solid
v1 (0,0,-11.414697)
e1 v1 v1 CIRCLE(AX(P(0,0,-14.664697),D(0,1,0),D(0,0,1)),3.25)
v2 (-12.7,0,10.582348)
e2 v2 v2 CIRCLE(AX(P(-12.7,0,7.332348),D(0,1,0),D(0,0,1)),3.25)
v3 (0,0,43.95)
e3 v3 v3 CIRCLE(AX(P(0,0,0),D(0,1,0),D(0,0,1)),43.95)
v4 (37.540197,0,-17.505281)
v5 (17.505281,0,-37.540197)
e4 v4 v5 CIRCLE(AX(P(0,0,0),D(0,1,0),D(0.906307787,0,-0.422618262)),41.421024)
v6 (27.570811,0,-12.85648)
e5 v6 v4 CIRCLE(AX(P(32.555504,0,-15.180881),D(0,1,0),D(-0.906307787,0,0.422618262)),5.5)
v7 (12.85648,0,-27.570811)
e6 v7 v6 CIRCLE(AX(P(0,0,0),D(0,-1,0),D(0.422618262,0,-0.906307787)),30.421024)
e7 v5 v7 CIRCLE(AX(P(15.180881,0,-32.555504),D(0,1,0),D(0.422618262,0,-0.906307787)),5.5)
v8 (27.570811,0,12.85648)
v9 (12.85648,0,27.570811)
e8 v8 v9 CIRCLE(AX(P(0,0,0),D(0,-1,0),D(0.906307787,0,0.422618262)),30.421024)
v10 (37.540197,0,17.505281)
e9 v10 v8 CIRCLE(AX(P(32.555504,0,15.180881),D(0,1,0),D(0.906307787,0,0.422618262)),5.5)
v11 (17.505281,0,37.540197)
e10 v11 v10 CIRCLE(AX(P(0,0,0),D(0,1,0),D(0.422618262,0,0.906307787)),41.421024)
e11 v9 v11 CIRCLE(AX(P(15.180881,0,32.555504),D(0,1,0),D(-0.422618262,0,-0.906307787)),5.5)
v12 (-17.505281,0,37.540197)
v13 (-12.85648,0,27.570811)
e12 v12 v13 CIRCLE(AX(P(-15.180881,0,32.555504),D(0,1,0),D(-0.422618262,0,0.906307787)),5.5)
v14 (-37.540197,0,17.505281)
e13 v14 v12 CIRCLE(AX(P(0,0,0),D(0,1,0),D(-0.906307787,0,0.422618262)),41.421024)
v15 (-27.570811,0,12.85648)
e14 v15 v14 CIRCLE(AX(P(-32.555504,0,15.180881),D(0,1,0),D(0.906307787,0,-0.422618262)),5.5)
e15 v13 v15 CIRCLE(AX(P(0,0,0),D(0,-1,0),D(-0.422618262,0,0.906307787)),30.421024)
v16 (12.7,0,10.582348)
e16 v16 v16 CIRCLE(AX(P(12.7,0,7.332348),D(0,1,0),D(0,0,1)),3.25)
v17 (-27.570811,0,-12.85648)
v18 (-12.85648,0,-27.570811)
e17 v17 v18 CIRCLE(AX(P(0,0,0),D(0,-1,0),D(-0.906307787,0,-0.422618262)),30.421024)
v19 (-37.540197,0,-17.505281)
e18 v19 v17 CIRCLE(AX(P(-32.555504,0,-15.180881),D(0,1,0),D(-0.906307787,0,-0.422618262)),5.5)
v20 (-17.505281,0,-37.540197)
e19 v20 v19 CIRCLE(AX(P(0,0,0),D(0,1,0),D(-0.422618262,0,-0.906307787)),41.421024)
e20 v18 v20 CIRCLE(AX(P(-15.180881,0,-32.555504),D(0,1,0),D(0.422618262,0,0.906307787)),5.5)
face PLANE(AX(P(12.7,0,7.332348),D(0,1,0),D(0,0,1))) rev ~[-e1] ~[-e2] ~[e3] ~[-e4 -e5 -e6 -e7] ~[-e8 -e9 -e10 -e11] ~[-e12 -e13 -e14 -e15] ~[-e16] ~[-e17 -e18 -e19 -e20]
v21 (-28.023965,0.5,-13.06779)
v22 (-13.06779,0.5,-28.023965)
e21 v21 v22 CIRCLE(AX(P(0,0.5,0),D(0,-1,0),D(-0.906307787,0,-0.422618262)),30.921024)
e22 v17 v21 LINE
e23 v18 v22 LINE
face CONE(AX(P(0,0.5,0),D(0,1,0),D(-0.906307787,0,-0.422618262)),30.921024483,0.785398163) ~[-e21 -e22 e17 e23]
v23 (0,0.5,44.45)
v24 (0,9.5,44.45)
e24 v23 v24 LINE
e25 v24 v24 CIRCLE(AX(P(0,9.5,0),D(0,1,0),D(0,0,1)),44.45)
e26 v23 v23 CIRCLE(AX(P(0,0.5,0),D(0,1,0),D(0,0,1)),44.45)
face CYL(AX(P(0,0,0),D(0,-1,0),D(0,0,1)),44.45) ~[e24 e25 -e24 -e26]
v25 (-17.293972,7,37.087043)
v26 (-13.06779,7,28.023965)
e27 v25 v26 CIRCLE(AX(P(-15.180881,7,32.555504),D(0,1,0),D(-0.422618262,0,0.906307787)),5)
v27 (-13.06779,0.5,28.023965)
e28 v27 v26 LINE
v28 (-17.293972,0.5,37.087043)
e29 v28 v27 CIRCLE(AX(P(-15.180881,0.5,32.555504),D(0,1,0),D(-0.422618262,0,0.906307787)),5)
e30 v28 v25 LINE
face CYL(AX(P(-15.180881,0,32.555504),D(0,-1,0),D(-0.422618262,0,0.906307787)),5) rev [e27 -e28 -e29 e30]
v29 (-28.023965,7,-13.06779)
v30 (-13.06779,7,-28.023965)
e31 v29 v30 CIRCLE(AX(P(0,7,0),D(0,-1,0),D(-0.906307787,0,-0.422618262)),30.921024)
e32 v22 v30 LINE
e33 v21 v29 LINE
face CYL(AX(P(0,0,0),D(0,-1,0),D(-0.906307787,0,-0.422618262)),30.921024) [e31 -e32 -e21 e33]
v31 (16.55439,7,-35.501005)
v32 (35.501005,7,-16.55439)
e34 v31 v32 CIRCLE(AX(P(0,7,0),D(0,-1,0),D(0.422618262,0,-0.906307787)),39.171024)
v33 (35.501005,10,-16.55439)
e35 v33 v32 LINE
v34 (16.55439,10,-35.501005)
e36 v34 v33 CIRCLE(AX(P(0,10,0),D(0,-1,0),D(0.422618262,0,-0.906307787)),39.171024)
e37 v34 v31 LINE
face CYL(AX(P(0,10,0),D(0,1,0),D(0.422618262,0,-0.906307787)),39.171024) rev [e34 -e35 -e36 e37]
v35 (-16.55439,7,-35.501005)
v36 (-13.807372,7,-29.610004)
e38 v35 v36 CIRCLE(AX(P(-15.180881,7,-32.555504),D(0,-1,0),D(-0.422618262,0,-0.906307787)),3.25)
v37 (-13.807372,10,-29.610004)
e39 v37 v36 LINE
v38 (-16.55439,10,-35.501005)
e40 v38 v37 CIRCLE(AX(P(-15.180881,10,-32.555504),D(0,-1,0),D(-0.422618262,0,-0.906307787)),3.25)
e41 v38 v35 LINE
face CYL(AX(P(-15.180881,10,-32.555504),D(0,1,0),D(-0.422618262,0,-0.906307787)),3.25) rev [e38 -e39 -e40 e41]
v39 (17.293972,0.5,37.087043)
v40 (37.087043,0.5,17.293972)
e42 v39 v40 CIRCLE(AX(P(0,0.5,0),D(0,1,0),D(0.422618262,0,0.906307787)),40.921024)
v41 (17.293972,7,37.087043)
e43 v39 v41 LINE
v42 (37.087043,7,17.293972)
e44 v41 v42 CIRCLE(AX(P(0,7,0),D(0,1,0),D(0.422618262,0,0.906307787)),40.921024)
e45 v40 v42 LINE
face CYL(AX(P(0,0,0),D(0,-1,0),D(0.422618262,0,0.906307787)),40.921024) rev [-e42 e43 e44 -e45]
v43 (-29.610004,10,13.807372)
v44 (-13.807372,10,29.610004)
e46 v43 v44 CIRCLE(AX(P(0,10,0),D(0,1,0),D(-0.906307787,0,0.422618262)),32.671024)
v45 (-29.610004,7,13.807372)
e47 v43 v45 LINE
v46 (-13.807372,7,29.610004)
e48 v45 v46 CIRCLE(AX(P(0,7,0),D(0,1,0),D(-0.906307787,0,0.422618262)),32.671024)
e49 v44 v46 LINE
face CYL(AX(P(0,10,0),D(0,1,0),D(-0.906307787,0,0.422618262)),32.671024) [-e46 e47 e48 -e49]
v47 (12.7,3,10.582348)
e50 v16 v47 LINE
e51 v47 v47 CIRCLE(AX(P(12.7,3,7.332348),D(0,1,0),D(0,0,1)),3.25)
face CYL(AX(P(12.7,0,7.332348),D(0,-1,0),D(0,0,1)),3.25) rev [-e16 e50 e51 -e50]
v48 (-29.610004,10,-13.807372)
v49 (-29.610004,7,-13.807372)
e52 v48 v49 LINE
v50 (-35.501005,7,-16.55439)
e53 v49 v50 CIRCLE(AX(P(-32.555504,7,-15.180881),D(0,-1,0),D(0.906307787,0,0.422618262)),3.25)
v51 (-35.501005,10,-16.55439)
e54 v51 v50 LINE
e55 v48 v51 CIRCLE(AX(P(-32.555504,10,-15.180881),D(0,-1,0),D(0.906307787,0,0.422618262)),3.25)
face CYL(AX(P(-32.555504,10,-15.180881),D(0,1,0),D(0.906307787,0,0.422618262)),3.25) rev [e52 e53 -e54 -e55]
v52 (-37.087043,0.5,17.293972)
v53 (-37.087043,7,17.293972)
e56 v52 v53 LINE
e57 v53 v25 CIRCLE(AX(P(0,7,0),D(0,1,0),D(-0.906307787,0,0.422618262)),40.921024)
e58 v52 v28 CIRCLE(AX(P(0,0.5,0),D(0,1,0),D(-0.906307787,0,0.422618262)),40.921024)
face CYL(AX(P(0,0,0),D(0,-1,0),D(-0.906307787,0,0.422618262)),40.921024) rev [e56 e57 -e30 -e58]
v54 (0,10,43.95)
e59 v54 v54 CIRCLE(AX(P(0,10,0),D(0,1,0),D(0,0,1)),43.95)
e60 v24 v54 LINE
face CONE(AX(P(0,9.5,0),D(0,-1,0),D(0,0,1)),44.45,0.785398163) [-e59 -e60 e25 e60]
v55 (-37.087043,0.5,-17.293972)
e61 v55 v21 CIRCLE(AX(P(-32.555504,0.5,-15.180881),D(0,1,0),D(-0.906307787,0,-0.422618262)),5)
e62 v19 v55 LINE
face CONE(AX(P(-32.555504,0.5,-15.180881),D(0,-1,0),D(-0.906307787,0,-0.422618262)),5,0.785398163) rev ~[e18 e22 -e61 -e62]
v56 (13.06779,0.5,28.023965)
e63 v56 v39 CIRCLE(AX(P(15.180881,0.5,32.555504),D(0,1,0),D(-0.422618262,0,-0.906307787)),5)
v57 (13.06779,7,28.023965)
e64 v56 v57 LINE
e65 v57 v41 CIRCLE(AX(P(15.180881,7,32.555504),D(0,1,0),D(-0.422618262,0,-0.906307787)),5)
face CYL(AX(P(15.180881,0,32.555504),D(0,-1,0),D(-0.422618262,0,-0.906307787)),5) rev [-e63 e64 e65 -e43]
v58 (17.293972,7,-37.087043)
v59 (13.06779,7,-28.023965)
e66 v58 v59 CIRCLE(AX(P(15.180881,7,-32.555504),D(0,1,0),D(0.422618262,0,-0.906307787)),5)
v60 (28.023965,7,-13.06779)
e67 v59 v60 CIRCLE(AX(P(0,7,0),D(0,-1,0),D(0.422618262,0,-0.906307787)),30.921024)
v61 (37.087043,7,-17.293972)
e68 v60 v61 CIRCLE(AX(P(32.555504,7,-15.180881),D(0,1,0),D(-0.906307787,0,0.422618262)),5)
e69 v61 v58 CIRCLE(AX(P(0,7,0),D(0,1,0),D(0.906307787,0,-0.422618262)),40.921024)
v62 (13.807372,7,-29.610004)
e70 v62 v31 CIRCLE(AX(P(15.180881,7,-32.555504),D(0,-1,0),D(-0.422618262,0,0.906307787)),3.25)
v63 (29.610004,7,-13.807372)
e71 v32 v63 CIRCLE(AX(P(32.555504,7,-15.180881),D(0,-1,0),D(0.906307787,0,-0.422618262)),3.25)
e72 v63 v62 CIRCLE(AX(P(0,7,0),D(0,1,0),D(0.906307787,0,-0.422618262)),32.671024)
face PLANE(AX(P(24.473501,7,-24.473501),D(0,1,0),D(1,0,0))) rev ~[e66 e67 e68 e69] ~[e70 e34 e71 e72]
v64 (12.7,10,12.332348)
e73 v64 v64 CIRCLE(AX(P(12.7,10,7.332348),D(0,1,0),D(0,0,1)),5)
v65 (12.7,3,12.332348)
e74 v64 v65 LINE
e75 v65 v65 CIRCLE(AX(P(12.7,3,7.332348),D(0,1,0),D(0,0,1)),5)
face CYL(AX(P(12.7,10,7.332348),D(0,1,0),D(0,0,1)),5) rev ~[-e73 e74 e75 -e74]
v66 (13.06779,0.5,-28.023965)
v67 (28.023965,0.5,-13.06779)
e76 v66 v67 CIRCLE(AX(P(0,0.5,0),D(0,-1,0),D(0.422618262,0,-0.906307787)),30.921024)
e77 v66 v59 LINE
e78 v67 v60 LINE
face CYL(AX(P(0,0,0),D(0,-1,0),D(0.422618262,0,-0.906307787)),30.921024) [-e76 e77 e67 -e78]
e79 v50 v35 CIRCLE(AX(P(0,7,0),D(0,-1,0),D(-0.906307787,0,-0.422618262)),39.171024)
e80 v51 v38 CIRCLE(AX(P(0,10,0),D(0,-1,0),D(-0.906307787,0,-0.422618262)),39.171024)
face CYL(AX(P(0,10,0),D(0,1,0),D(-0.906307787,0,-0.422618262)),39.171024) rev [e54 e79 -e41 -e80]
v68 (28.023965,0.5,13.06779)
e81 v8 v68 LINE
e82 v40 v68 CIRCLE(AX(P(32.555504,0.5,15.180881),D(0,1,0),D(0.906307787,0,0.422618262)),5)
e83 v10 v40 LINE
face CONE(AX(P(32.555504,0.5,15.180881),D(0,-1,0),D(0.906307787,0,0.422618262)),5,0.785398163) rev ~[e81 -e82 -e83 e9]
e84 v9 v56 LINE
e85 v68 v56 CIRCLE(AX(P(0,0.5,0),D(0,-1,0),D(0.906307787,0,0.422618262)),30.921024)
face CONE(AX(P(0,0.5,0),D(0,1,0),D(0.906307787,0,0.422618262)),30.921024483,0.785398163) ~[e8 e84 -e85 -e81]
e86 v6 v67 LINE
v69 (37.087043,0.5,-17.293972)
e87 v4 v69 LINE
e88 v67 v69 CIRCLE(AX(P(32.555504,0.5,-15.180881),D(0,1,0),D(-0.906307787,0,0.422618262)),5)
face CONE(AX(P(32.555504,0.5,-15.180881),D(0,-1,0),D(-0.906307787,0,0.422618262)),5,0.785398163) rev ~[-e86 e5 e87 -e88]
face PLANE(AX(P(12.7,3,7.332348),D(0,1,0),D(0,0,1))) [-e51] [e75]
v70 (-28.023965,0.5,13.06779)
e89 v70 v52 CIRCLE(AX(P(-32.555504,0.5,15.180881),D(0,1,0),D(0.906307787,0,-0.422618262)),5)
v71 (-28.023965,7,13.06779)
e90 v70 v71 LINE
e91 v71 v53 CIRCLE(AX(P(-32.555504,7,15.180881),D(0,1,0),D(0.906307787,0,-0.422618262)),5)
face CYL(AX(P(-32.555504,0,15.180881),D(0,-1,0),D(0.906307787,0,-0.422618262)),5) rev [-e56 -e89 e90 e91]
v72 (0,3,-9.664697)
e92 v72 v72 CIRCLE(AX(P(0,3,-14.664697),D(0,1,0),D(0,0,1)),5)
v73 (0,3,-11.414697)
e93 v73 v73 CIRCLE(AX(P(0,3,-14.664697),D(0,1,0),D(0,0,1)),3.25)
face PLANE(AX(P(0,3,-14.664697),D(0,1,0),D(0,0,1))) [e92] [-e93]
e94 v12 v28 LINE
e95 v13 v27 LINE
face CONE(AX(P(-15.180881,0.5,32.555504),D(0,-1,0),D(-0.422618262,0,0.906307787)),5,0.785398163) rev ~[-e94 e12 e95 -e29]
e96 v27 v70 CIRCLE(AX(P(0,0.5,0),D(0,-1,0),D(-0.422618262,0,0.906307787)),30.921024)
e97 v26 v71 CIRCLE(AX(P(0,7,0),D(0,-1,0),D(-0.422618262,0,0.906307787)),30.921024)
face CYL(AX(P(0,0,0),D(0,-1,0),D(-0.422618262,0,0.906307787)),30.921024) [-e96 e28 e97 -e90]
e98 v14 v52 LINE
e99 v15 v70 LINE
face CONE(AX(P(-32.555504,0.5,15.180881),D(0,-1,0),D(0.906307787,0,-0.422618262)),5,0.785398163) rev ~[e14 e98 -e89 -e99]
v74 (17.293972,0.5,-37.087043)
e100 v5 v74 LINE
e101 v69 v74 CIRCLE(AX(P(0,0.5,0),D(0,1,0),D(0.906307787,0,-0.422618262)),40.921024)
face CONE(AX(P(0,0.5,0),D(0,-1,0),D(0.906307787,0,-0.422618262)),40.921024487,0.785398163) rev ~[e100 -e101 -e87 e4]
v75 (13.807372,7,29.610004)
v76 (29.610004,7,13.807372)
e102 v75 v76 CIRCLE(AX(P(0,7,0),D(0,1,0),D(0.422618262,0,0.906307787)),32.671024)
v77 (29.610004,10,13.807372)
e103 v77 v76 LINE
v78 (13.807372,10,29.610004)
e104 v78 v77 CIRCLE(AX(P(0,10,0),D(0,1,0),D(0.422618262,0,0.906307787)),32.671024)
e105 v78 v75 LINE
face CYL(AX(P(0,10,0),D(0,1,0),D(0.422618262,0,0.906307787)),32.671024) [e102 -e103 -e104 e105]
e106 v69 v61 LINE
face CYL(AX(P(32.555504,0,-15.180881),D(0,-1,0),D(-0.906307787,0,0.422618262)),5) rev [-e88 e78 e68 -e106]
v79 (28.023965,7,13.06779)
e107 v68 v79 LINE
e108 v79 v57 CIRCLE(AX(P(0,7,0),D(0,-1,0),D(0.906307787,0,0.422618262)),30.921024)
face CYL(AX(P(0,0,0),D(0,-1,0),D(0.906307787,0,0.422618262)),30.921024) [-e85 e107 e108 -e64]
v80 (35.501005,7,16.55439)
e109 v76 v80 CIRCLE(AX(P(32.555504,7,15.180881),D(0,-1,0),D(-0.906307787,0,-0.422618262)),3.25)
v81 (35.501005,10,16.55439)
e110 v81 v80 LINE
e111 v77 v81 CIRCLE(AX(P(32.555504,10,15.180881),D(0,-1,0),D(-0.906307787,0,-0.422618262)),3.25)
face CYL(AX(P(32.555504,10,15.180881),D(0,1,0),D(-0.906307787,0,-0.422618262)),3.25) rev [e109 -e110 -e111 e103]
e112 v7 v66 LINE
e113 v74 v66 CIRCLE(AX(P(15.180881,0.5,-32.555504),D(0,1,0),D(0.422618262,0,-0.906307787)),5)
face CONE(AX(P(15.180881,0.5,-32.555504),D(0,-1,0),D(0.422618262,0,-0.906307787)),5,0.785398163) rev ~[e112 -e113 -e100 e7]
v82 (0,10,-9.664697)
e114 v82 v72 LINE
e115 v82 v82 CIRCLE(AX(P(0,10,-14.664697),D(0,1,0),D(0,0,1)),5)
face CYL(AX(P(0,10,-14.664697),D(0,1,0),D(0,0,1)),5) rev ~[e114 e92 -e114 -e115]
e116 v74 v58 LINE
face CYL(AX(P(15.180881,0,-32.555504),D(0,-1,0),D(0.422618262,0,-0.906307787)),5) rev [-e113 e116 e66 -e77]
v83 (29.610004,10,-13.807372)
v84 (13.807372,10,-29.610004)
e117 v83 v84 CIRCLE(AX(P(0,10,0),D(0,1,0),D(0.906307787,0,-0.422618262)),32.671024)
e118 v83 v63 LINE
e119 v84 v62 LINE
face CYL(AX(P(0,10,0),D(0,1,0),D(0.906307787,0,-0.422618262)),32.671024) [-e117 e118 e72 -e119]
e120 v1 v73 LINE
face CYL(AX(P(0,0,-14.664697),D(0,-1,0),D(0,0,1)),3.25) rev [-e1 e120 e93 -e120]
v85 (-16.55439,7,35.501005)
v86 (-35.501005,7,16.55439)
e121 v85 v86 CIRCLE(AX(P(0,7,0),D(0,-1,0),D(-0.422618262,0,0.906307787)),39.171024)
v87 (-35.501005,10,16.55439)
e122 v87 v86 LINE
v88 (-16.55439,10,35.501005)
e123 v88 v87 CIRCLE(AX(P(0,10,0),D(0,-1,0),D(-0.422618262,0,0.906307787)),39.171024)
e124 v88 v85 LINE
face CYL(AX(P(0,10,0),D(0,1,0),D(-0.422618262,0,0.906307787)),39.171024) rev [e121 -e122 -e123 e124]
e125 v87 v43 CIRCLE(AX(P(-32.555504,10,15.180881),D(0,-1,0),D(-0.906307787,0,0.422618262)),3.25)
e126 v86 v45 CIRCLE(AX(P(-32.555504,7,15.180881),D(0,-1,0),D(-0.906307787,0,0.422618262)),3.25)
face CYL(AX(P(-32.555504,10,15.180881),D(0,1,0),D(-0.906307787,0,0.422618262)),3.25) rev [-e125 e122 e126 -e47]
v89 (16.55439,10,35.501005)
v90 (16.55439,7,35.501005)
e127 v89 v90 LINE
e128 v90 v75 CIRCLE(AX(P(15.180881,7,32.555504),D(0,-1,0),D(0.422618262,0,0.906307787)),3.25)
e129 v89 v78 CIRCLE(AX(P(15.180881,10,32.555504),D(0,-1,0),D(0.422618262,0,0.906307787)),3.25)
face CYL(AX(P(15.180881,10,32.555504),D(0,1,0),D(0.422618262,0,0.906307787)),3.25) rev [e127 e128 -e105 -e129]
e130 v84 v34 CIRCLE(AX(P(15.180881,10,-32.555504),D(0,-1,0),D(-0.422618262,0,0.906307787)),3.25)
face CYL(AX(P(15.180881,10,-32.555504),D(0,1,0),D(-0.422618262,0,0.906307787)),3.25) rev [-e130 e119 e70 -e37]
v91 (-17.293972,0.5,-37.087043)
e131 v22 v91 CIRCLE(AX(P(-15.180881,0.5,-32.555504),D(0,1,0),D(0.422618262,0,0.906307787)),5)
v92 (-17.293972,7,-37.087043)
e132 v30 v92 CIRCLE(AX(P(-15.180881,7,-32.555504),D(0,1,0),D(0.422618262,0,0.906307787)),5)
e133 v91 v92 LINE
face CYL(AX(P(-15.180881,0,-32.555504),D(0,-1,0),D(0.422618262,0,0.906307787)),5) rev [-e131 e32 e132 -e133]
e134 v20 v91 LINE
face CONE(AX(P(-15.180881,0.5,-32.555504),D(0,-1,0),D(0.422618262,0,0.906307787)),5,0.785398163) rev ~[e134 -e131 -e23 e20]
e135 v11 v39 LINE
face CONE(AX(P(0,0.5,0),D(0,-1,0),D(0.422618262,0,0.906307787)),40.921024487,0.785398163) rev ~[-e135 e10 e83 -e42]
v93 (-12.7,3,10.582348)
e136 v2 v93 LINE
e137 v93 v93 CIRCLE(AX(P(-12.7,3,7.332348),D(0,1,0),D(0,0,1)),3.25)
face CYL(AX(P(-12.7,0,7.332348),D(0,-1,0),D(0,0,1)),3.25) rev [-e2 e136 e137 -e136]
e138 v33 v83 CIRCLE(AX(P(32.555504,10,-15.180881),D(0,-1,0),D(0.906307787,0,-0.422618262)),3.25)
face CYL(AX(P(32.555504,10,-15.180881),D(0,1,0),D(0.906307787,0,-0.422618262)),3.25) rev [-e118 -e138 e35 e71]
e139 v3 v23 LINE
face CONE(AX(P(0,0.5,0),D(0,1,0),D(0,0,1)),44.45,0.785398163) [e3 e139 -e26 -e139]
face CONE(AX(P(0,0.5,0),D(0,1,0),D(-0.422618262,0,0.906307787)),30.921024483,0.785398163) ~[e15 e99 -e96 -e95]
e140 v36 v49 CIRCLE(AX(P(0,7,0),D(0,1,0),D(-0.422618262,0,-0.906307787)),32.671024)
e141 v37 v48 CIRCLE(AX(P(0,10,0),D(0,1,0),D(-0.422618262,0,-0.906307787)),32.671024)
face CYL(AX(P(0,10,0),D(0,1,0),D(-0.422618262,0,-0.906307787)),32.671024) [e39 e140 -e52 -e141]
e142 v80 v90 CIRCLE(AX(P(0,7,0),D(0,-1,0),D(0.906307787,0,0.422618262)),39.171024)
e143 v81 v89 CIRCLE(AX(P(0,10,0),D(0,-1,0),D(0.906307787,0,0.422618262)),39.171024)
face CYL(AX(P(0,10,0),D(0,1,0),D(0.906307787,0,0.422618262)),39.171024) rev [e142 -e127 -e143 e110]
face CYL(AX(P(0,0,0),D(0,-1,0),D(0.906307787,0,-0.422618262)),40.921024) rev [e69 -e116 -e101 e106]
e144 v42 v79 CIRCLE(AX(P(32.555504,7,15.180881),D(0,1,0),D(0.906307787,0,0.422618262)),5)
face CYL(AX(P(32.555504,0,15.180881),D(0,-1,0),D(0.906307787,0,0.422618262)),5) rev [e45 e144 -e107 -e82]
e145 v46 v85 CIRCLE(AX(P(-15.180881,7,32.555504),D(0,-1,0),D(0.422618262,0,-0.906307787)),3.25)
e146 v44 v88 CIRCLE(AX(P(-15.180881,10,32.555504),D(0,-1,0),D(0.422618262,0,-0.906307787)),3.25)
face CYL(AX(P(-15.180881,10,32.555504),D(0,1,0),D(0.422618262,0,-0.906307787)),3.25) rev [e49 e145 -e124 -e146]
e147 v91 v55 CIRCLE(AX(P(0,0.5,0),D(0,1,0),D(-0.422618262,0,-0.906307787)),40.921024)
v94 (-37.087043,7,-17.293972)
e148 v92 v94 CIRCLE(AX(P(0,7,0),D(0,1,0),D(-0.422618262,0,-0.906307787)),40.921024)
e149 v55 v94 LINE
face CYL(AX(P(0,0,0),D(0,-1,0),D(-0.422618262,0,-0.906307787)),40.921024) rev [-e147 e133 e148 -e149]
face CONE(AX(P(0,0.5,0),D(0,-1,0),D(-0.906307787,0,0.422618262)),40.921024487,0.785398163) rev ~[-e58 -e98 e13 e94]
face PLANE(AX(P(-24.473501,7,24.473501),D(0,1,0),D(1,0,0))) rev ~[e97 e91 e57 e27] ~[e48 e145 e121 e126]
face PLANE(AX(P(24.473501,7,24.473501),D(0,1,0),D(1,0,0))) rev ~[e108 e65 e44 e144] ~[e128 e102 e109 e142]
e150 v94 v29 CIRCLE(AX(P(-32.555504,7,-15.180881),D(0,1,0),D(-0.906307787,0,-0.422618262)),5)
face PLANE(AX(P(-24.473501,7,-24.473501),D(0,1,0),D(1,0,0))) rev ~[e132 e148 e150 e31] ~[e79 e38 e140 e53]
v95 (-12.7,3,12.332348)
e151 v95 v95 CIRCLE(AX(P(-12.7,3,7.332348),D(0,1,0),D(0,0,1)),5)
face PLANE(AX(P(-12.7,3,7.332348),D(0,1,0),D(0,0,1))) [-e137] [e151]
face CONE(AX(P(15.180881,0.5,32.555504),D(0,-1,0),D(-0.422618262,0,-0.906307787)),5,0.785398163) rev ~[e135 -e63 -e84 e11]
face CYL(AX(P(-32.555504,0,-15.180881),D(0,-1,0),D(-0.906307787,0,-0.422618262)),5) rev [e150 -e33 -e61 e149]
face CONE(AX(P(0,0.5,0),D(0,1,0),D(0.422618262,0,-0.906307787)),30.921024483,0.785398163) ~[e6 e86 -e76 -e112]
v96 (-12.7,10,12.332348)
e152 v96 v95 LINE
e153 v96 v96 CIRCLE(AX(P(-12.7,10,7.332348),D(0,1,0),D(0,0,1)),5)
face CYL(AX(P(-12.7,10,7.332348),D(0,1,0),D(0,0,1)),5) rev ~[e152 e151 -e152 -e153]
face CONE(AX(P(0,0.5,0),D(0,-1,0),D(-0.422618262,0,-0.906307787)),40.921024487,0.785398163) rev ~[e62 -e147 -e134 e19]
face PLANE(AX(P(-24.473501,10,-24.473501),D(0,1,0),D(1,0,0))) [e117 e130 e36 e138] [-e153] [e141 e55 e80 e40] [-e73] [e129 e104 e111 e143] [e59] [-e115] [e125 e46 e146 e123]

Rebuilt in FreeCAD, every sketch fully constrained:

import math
import FreeCAD as App
import Part
import Sketcher

V = App.Vector
Q = App.Units.Quantity


def edges_at(feature, points):
    """Names of the edges that pass closest to the given points."""
    edges = feature.Shape.Edges
    near = lambda p: min(range(len(edges)), key=lambda i: edges[i].distToShape(Part.Vertex(*p))[0])
    return sorted({f"Edge{near(p) + 1}" for p in points})

doc = App.newDocument("Part")
body = doc.addObject("PartDesign::Body", "Body")

# Sketch on XZ plane
sketch1 = body.newObject("Sketcher::SketchObject", "Sketch")
sketch1.AttachmentSupport = (doc.getObject("XZ_Plane"), [""])
sketch1.MapMode = "FlatFace"
sketch1.addGeometry(Part.Circle(V(0, 0, 0), V(0, 0, 1), 44), False)
sketch1.addGeometry(Part.ArcOfCircle(Part.Circle(V(0, 0, 0), V(0, 0, 1), 41), math.radians(-155), math.radians(-115)), False)
sketch1.addGeometry(Part.ArcOfCircle(Part.Circle(V(-15, -33, 0), V(0, 0, 1), 5), math.radians(-115), math.radians(65)), False)
sketch1.addGeometry(Part.ArcOfCircle(Part.Circle(V(0, 0, 0), V(0, 0, 1), 31), math.radians(-155), math.radians(-115)), False)
sketch1.addGeometry(Part.ArcOfCircle(Part.Circle(V(-33, -15, 0), V(0, 0, 1), 5), math.radians(25), math.radians(205)), False)
sketch1.addGeometry(Part.ArcOfCircle(Part.Circle(V(0, 0, 0), V(0, 0, 1), 41), math.radians(115), math.radians(155)), False)
sketch1.addGeometry(Part.ArcOfCircle(Part.Circle(V(-33, 15, 0), V(0, 0, 1), 5), math.radians(155), math.radians(335)), False)
sketch1.addGeometry(Part.ArcOfCircle(Part.Circle(V(0, 0, 0), V(0, 0, 1), 31), math.radians(115), math.radians(155)), False)
sketch1.addGeometry(Part.ArcOfCircle(Part.Circle(V(-15, 33, 0), V(0, 0, 1), 5), math.radians(-65), math.radians(115)), False)
sketch1.addGeometry(Part.ArcOfCircle(Part.Circle(V(0, 0, 0), V(0, 0, 1), 41), math.radians(-65), math.radians(-25)), False)
sketch1.addGeometry(Part.ArcOfCircle(Part.Circle(V(33, -15, 0), V(0, 0, 1), 5), math.radians(-25), math.radians(155)), False)
sketch1.addGeometry(Part.ArcOfCircle(Part.Circle(V(0, 0, 0), V(0, 0, 1), 31), math.radians(-65), math.radians(-25)), False)
sketch1.addGeometry(Part.ArcOfCircle(Part.Circle(V(15, -33, 0), V(0, 0, 1), 5), math.radians(115), math.radians(295)), False)
sketch1.addGeometry(Part.ArcOfCircle(Part.Circle(V(0, 0, 0), V(0, 0, 1), 41), math.radians(25), math.radians(65)), False)
sketch1.addGeometry(Part.ArcOfCircle(Part.Circle(V(15, 33, 0), V(0, 0, 1), 5), math.radians(65), math.radians(245)), False)
sketch1.addGeometry(Part.ArcOfCircle(Part.Circle(V(0, 0, 0), V(0, 0, 1), 31), math.radians(25), math.radians(65)), False)
sketch1.addGeometry(Part.ArcOfCircle(Part.Circle(V(33, 15, 0), V(0, 0, 1), 5), math.radians(-155), math.radians(25)), False)
sketch1.addConstraint(Sketcher.Constraint("Tangent", 1, 2, 2, 1))
sketch1.addConstraint(Sketcher.Constraint("Tangent", 2, 2, 3, 2))
sketch1.addConstraint(Sketcher.Constraint("Tangent", 3, 1, 4, 1))
sketch1.addConstraint(Sketcher.Constraint("Tangent", 4, 2, 1, 1))
sketch1.addConstraint(Sketcher.Constraint("Tangent", 5, 2, 6, 1))
sketch1.addConstraint(Sketcher.Constraint("Tangent", 6, 2, 7, 2))
sketch1.addConstraint(Sketcher.Constraint("Tangent", 7, 1, 8, 1))
sketch1.addConstraint(Sketcher.Constraint("Tangent", 8, 2, 5, 1))
sketch1.addConstraint(Sketcher.Constraint("Tangent", 9, 2, 10, 1))
sketch1.addConstraint(Sketcher.Constraint("Tangent", 10, 2, 11, 2))
sketch1.addConstraint(Sketcher.Constraint("Tangent", 11, 1, 12, 1))
sketch1.addConstraint(Sketcher.Constraint("Tangent", 12, 2, 9, 1))
sketch1.addConstraint(Sketcher.Constraint("Tangent", 13, 2, 14, 1))
sketch1.addConstraint(Sketcher.Constraint("Tangent", 14, 2, 15, 2))
sketch1.addConstraint(Sketcher.Constraint("Tangent", 15, 1, 16, 1))
sketch1.addConstraint(Sketcher.Constraint("Tangent", 16, 2, 13, 1))
sketch1.addConstraint(Sketcher.Constraint("Coincident", 0, 3, -1, 1))
sketch1.addConstraint(Sketcher.Constraint("Coincident", 1, 3, -1, 1))
sketch1.addConstraint(Sketcher.Constraint("Coincident", 3, 3, -1, 1))
sketch1.addConstraint(Sketcher.Constraint("Coincident", 5, 3, -1, 1))
sketch1.addConstraint(Sketcher.Constraint("Coincident", 7, 3, -1, 1))
sketch1.addConstraint(Sketcher.Constraint("Coincident", 9, 3, -1, 1))
sketch1.addConstraint(Sketcher.Constraint("Coincident", 11, 3, -1, 1))
sketch1.addConstraint(Sketcher.Constraint("Coincident", 13, 3, -1, 1))
sketch1.addConstraint(Sketcher.Constraint("Coincident", 15, 3, -1, 1))
sketch1.addConstraint(Sketcher.Constraint("Equal", 1, 5))
sketch1.addConstraint(Sketcher.Constraint("Equal", 4, 6))
sketch1.addConstraint(Sketcher.Constraint("Equal", 5, 9))
sketch1.addConstraint(Sketcher.Constraint("Equal", 8, 10))
sketch1.addConstraint(Sketcher.Constraint("Equal", 9, 13))
sketch1.addConstraint(Sketcher.Constraint("Equal", 12, 14))
sketch1.addConstraint(Sketcher.Constraint("Horizontal", 4, 3, 10, 3))
sketch1.addConstraint(Sketcher.Constraint("Horizontal", 2, 3, 12, 3))
sketch1.addConstraint(Sketcher.Constraint("Horizontal", 8, 3, 14, 3))
sketch1.addConstraint(Sketcher.Constraint("Horizontal", 6, 3, 16, 3))
sketch1.addConstraint(Sketcher.Constraint("Vertical", 4, 3, 6, 3))
sketch1.addConstraint(Sketcher.Constraint("Vertical", 2, 3, 8, 3))
sketch1.addConstraint(Sketcher.Constraint("Radius", 2, Q("5 mm")))
sketch1.addConstraint(Sketcher.Constraint("Diameter", 0, Q("88.9 mm")))
sketch1.addConstraint(Sketcher.Constraint("Radius", 1, Q("40.921024 mm")))
sketch1.addConstraint(Sketcher.Constraint("DistanceX", 2, 3, -1, 1, Q("15.180881 mm")))
sketch1.addConstraint(Sketcher.Constraint("DistanceY", 4, 3, -1, 1, Q("15.180881 mm")))
pad1 = body.newObject("PartDesign::Pad", "Pad")
pad1.Profile = sketch1
pad1.Length = 10
pad1.Reversed = True

# Sketch on XZ plane
sketch2 = body.newObject("Sketcher::SketchObject", "Sketch001")
sketch2.AttachmentSupport = (doc.getObject("XZ_Plane"), [""])
sketch2.MapMode = "FlatFace"
sketch2.AttachmentOffset = App.Placement(V(0, 0, -10), App.Rotation())
sketch2.addGeometry(Part.ArcOfCircle(Part.Circle(V(0, 0, 0), V(0, 0, 1), 40.9), math.radians(-155), math.radians(-115)), False)
sketch2.addGeometry(Part.ArcOfCircle(Part.Circle(V(-32.6, -15.2, 0), V(0, 0, 1), 5), math.radians(25), math.radians(205)), False)
sketch2.addGeometry(Part.ArcOfCircle(Part.Circle(V(0, 0, 0), V(0, 0, 1), 30.9), math.radians(-155), math.radians(-115)), False)
sketch2.addGeometry(Part.ArcOfCircle(Part.Circle(V(-15.2, -32.6, 0), V(0, 0, 1), 5), math.radians(-115), math.radians(65)), False)
sketch2.addGeometry(Part.ArcOfCircle(Part.Circle(V(0, 0, 0), V(0, 0, 1), 39.2), math.radians(-155), math.radians(-115)), False)
sketch2.addGeometry(Part.ArcOfCircle(Part.Circle(V(-15.2, -32.6, 0), V(0, 0, 1), 3.2), math.radians(-115), math.radians(65)), False)
sketch2.addGeometry(Part.ArcOfCircle(Part.Circle(V(0, 0, 0), V(0, 0, 1), 32.7), math.radians(-155), math.radians(-115)), False)
sketch2.addGeometry(Part.ArcOfCircle(Part.Circle(V(-32.6, -15.2, 0), V(0, 0, 1), 3.2), math.radians(25), math.radians(205)), False)
sketch2.addGeometry(Part.ArcOfCircle(Part.Circle(V(15.2, -32.6, 0), V(0, 0, 1), 5), math.radians(115), math.radians(295)), False)
sketch2.addGeometry(Part.ArcOfCircle(Part.Circle(V(0, 0, 0), V(0, 0, 1), 30.9), math.radians(-65), math.radians(-25)), False)
sketch2.addGeometry(Part.ArcOfCircle(Part.Circle(V(32.6, -15.2, 0), V(0, 0, 1), 5), math.radians(-25), math.radians(155)), False)
sketch2.addGeometry(Part.ArcOfCircle(Part.Circle(V(0, 0, 0), V(0, 0, 1), 40.9), math.radians(-65), math.radians(-25)), False)
sketch2.addGeometry(Part.ArcOfCircle(Part.Circle(V(0, 0, 0), V(0, 0, 1), 39.2), math.radians(-65), math.radians(-25)), False)
sketch2.addGeometry(Part.ArcOfCircle(Part.Circle(V(32.6, -15.2, 0), V(0, 0, 1), 3.2), math.radians(-25), math.radians(155)), False)
sketch2.addGeometry(Part.ArcOfCircle(Part.Circle(V(0, 0, 0), V(0, 0, 1), 32.7), math.radians(-65), math.radians(-25)), False)
sketch2.addGeometry(Part.ArcOfCircle(Part.Circle(V(15.2, -32.6, 0), V(0, 0, 1), 3.2), math.radians(115), math.radians(295)), False)
sketch2.addGeometry(Part.ArcOfCircle(Part.Circle(V(32.6, 15.2, 0), V(0, 0, 1), 5), math.radians(-155), math.radians(25)), False)
sketch2.addGeometry(Part.ArcOfCircle(Part.Circle(V(0, 0, 0), V(0, 0, 1), 30.9), math.radians(25), math.radians(65)), False)
sketch2.addGeometry(Part.ArcOfCircle(Part.Circle(V(15.2, 32.6, 0), V(0, 0, 1), 5), math.radians(65), math.radians(245)), False)
sketch2.addGeometry(Part.ArcOfCircle(Part.Circle(V(0, 0, 0), V(0, 0, 1), 40.9), math.radians(25), math.radians(65)), False)
sketch2.addGeometry(Part.ArcOfCircle(Part.Circle(V(0, 0, 0), V(0, 0, 1), 39.2), math.radians(25), math.radians(65)), False)
sketch2.addGeometry(Part.ArcOfCircle(Part.Circle(V(15.2, 32.6, 0), V(0, 0, 1), 3.2), math.radians(65), math.radians(245)), False)
sketch2.addGeometry(Part.ArcOfCircle(Part.Circle(V(0, 0, 0), V(0, 0, 1), 32.7), math.radians(25), math.radians(65)), False)
sketch2.addGeometry(Part.ArcOfCircle(Part.Circle(V(32.6, 15.2, 0), V(0, 0, 1), 3.2), math.radians(-155), math.radians(25)), False)
sketch2.addGeometry(Part.ArcOfCircle(Part.Circle(V(-32.6, 15.2, 0), V(0, 0, 1), 5), math.radians(155), math.radians(335)), False)
sketch2.addGeometry(Part.ArcOfCircle(Part.Circle(V(0, 0, 0), V(0, 0, 1), 40.9), math.radians(115), math.radians(155)), False)
sketch2.addGeometry(Part.ArcOfCircle(Part.Circle(V(-15.2, 32.6, 0), V(0, 0, 1), 5), math.radians(-65), math.radians(115)), False)
sketch2.addGeometry(Part.ArcOfCircle(Part.Circle(V(0, 0, 0), V(0, 0, 1), 30.9), math.radians(115), math.radians(155)), False)
sketch2.addGeometry(Part.ArcOfCircle(Part.Circle(V(0, 0, 0), V(0, 0, 1), 39.2), math.radians(115), math.radians(155)), False)
sketch2.addGeometry(Part.ArcOfCircle(Part.Circle(V(-32.6, 15.2, 0), V(0, 0, 1), 3.2), math.radians(155), math.radians(335)), False)
sketch2.addGeometry(Part.ArcOfCircle(Part.Circle(V(0, 0, 0), V(0, 0, 1), 32.7), math.radians(115), math.radians(155)), False)
sketch2.addGeometry(Part.ArcOfCircle(Part.Circle(V(-15.2, 32.6, 0), V(0, 0, 1), 3.2), math.radians(-65), math.radians(115)), False)
sketch2.addConstraint(Sketcher.Constraint("Tangent", 0, 1, 1, 2))
sketch2.addConstraint(Sketcher.Constraint("Tangent", 1, 1, 2, 1))
sketch2.addConstraint(Sketcher.Constraint("Tangent", 2, 2, 3, 2))
sketch2.addConstraint(Sketcher.Constraint("Tangent", 3, 1, 0, 2))
sketch2.addConstraint(Sketcher.Constraint("Tangent", 4, 2, 5, 1))
sketch2.addConstraint(Sketcher.Constraint("Tangent", 5, 2, 6, 2))
sketch2.addConstraint(Sketcher.Constraint("Tangent", 6, 1, 7, 1))
sketch2.addConstraint(Sketcher.Constraint("Tangent", 7, 2, 4, 1))
sketch2.addConstraint(Sketcher.Constraint("Tangent", 8, 1, 9, 1))
sketch2.addConstraint(Sketcher.Constraint("Tangent", 9, 2, 10, 2))
sketch2.addConstraint(Sketcher.Constraint("Tangent", 10, 1, 11, 2))
sketch2.addConstraint(Sketcher.Constraint("Tangent", 11, 1, 8, 2))
sketch2.addConstraint(Sketcher.Constraint("Tangent", 12, 2, 13, 1))
sketch2.addConstraint(Sketcher.Constraint("Tangent", 13, 2, 14, 2))
sketch2.addConstraint(Sketcher.Constraint("Tangent", 14, 1, 15, 1))
sketch2.addConstraint(Sketcher.Constraint("Tangent", 15, 2, 12, 1))
sketch2.addConstraint(Sketcher.Constraint("Tangent", 16, 1, 17, 1))
sketch2.addConstraint(Sketcher.Constraint("Tangent", 17, 2, 18, 2))
sketch2.addConstraint(Sketcher.Constraint("Tangent", 18, 1, 19, 2))
sketch2.addConstraint(Sketcher.Constraint("Tangent", 19, 1, 16, 2))
sketch2.addConstraint(Sketcher.Constraint("Tangent", 20, 2, 21, 1))
sketch2.addConstraint(Sketcher.Constraint("Tangent", 21, 2, 22, 2))
sketch2.addConstraint(Sketcher.Constraint("Tangent", 22, 1, 23, 1))
sketch2.addConstraint(Sketcher.Constraint("Tangent", 23, 2, 20, 1))
sketch2.addConstraint(Sketcher.Constraint("Tangent", 24, 1, 25, 2))
sketch2.addConstraint(Sketcher.Constraint("Tangent", 25, 1, 26, 2))
sketch2.addConstraint(Sketcher.Constraint("Tangent", 26, 1, 27, 1))
sketch2.addConstraint(Sketcher.Constraint("Tangent", 27, 2, 24, 2))
sketch2.addConstraint(Sketcher.Constraint("Tangent", 28, 2, 29, 1))
sketch2.addConstraint(Sketcher.Constraint("Tangent", 29, 2, 30, 2))
sketch2.addConstraint(Sketcher.Constraint("Tangent", 30, 1, 31, 1))
sketch2.addConstraint(Sketcher.Constraint("Tangent", 31, 2, 28, 1))
sketch2.addConstraint(Sketcher.Constraint("Coincident", 0, 3, -1, 1))
sketch2.addConstraint(Sketcher.Constraint("Coincident", 2, 3, -1, 1))
sketch2.addConstraint(Sketcher.Constraint("Coincident", 4, 3, -1, 1))
sketch2.addConstraint(Sketcher.Constraint("Coincident", 6, 3, -1, 1))
sketch2.addConstraint(Sketcher.Constraint("Coincident", 9, 3, -1, 1))
sketch2.addConstraint(Sketcher.Constraint("Coincident", 11, 3, -1, 1))
sketch2.addConstraint(Sketcher.Constraint("Coincident", 12, 3, -1, 1))
sketch2.addConstraint(Sketcher.Constraint("Coincident", 14, 3, -1, 1))
sketch2.addConstraint(Sketcher.Constraint("Coincident", 17, 3, -1, 1))
sketch2.addConstraint(Sketcher.Constraint("Coincident", 19, 3, -1, 1))
sketch2.addConstraint(Sketcher.Constraint("Coincident", 20, 3, -1, 1))
sketch2.addConstraint(Sketcher.Constraint("Coincident", 22, 3, -1, 1))
sketch2.addConstraint(Sketcher.Constraint("Coincident", 25, 3, -1, 1))
sketch2.addConstraint(Sketcher.Constraint("Coincident", 27, 3, -1, 1))
sketch2.addConstraint(Sketcher.Constraint("Coincident", 28, 3, -1, 1))
sketch2.addConstraint(Sketcher.Constraint("Coincident", 30, 3, -1, 1))
sketch2.addConstraint(Sketcher.Constraint("Coincident", 5, 3, 3, 3))
sketch2.addConstraint(Sketcher.Constraint("Coincident", 13, 3, 10, 3))
sketch2.addConstraint(Sketcher.Constraint("Coincident", 21, 3, 18, 3))
sketch2.addConstraint(Sketcher.Constraint("Coincident", 29, 3, 24, 3))
sketch2.addConstraint(Sketcher.Constraint("Equal", 3, 8))
sketch2.addConstraint(Sketcher.Constraint("Equal", 2, 9))
sketch2.addConstraint(Sketcher.Constraint("Equal", 4, 12))
sketch2.addConstraint(Sketcher.Constraint("Equal", 10, 16))
sketch2.addConstraint(Sketcher.Constraint("Equal", 9, 17))
sketch2.addConstraint(Sketcher.Constraint("Equal", 12, 20))
sketch2.addConstraint(Sketcher.Constraint("Equal", 18, 24))
sketch2.addConstraint(Sketcher.Constraint("Equal", 19, 25))
sketch2.addConstraint(Sketcher.Constraint("Equal", 20, 28))
sketch2.addConstraint(Sketcher.Constraint("Horizontal", 5, 3, 8, 3))
sketch2.addConstraint(Sketcher.Constraint("Horizontal", 7, 3, 10, 3))
sketch2.addConstraint(Sketcher.Constraint("Horizontal", 5, 3, 15, 3))
sketch2.addConstraint(Sketcher.Constraint("Horizontal", 23, 3, 24, 3))
sketch2.addConstraint(Sketcher.Constraint("Horizontal", 21, 3, 26, 3))
sketch2.addConstraint(Sketcher.Constraint("Horizontal", 21, 3, 31, 3))
sketch2.addConstraint(Sketcher.Constraint("Horizontal", 1, 1, 9, 2))
sketch2.addConstraint(Sketcher.Constraint("Horizontal", 19, 1, 24, 1))
sketch2.addConstraint(Sketcher.Constraint("Vertical", 13, 3, 16, 3))
sketch2.addConstraint(Sketcher.Constraint("Vertical", 15, 3, 18, 3))
sketch2.addConstraint(Sketcher.Constraint("Radius", 1, Q("5 mm")))
sketch2.addConstraint(Sketcher.Constraint("Radius", 5, Q("3.25 mm")))
sketch2.addConstraint(Sketcher.Constraint("Radius", 0, Q("40.921024 mm")))
sketch2.addConstraint(Sketcher.Constraint("DistanceY", 1, 3, -1, 1, Q("15.180881 mm")))
sketch2.addConstraint(Sketcher.Constraint("DistanceX", 3, 3, -1, 1, Q("15.180881 mm")))
pad2 = body.newObject("PartDesign::Pad", "Pad001")
pad2.Profile = sketch2
pad2.Length = 3

# Sketch on XZ plane
sketch3 = body.newObject("Sketcher::SketchObject", "Sketch002")
sketch3.AttachmentSupport = (doc.getObject("XZ_Plane"), [""])
sketch3.MapMode = "FlatFace"
sketch3.AttachmentOffset = App.Placement(V(0, 0, -10), App.Rotation())
sketch3.addGeometry(Part.Circle(V(0, -15, 0), V(0, 0, 1), 5), False)
sketch3.addGeometry(Part.Circle(V(-13, 7, 0), V(0, 0, 1), 5), False)
sketch3.addGeometry(Part.Circle(V(13, 7, 0), V(0, 0, 1), 5), False)
sketch3.addConstraint(Sketcher.Constraint("Equal", 0, 1))
sketch3.addConstraint(Sketcher.Constraint("Equal", 1, 2))
sketch3.addConstraint(Sketcher.Constraint("Symmetric", 1, 3, 2, 3, -2))
sketch3.addConstraint(Sketcher.Constraint("PointOnObject", 0, 3, -2))
sketch3.addConstraint(Sketcher.Constraint("Diameter", 0, Q("10 mm")))
sketch3.addConstraint(Sketcher.Constraint("DistanceX", 1, 3, -1, 1, Q("12.7 mm")))
sketch3.addConstraint(Sketcher.Constraint("DistanceY", -1, 1, 1, 3, Q("7.332348 mm")))
sketch3.addConstraint(Sketcher.Constraint("DistanceY", 0, 3, -1, 1, Q("14.664697 mm")))
pocket1 = body.newObject("PartDesign::Pocket", "Pocket")
pocket1.Profile = sketch3
pocket1.Length = 10
pocket1.Reversed = True

# Sketch on XZ plane
sketch4 = body.newObject("Sketcher::SketchObject", "Sketch003")
sketch4.AttachmentSupport = (doc.getObject("XZ_Plane"), [""])
sketch4.MapMode = "FlatFace"
sketch4.addGeometry(Part.Circle(V(12.7, 7.3, 0), V(0, 0, 1), 5), False)
sketch4.addGeometry(Part.Circle(V(12.7, 7.3, 0), V(0, 0, 1), 3.2), False)
sketch4.addGeometry(Part.Circle(V(-12.7, 7.3, 0), V(0, 0, 1), 5), False)
sketch4.addGeometry(Part.Circle(V(-12.7, 7.3, 0), V(0, 0, 1), 3.2), False)
sketch4.addGeometry(Part.Circle(V(0, -14.7, 0), V(0, 0, 1), 5), False)
sketch4.addGeometry(Part.Circle(V(0, -14.7, 0), V(0, 0, 1), 3.2), False)
sketch4.addConstraint(Sketcher.Constraint("Coincident", 1, 3, 0, 3))
sketch4.addConstraint(Sketcher.Constraint("Coincident", 3, 3, 2, 3))
sketch4.addConstraint(Sketcher.Constraint("Coincident", 5, 3, 4, 3))
sketch4.addConstraint(Sketcher.Constraint("Equal", 0, 2))
sketch4.addConstraint(Sketcher.Constraint("Equal", 1, 3))
sketch4.addConstraint(Sketcher.Constraint("Equal", 2, 4))
sketch4.addConstraint(Sketcher.Constraint("Equal", 3, 5))
sketch4.addConstraint(Sketcher.Constraint("Symmetric", 0, 3, 2, 3, -2))
sketch4.addConstraint(Sketcher.Constraint("PointOnObject", 4, 3, -2))
sketch4.addConstraint(Sketcher.Constraint("Diameter", 0, Q("10 mm")))
sketch4.addConstraint(Sketcher.Constraint("Diameter", 1, Q("6.5 mm")))
sketch4.addConstraint(Sketcher.Constraint("DistanceX", -1, 1, 0, 3, Q("12.7 mm")))
sketch4.addConstraint(Sketcher.Constraint("DistanceY", -1, 1, 0, 3, Q("7.332348 mm")))
sketch4.addConstraint(Sketcher.Constraint("DistanceY", 4, 3, -1, 1, Q("14.664697 mm")))
pad3 = body.newObject("PartDesign::Pad", "Pad002")
pad3.Profile = sketch4
pad3.Length = 3
pad3.Reversed = True
doc.recompute()

chamfer = body.newObject("PartDesign::Chamfer", "Chamfer")
chamfer.Base = (pad3, edges_at(pad3, [
    (-34.669, 0, 10.649),
    (-28.936, 0, 28.936),
    (-10.649, 0, 34.669),
    (-21.864, 0, 21.864),
    (0, 0, -44.45),
    (10.649, 0, 34.669),
    (28.936, 0, 28.936),
    (34.669, 0, 10.649),
    (21.864, 0, 21.864),
    (-28.936, 0, -28.936),
    (-34.669, 0, -10.649),
    (-21.864, 0, -21.864),
    (-10.649, 0, -34.669),
    (34.669, 0, -10.649),
    (28.936, 0, -28.936),
    (10.649, 0, -34.669),
    (21.864, 0, -21.864),
    (0, 10, -44.45),
]))
chamfer.Size = 0.5

doc.recompute()
